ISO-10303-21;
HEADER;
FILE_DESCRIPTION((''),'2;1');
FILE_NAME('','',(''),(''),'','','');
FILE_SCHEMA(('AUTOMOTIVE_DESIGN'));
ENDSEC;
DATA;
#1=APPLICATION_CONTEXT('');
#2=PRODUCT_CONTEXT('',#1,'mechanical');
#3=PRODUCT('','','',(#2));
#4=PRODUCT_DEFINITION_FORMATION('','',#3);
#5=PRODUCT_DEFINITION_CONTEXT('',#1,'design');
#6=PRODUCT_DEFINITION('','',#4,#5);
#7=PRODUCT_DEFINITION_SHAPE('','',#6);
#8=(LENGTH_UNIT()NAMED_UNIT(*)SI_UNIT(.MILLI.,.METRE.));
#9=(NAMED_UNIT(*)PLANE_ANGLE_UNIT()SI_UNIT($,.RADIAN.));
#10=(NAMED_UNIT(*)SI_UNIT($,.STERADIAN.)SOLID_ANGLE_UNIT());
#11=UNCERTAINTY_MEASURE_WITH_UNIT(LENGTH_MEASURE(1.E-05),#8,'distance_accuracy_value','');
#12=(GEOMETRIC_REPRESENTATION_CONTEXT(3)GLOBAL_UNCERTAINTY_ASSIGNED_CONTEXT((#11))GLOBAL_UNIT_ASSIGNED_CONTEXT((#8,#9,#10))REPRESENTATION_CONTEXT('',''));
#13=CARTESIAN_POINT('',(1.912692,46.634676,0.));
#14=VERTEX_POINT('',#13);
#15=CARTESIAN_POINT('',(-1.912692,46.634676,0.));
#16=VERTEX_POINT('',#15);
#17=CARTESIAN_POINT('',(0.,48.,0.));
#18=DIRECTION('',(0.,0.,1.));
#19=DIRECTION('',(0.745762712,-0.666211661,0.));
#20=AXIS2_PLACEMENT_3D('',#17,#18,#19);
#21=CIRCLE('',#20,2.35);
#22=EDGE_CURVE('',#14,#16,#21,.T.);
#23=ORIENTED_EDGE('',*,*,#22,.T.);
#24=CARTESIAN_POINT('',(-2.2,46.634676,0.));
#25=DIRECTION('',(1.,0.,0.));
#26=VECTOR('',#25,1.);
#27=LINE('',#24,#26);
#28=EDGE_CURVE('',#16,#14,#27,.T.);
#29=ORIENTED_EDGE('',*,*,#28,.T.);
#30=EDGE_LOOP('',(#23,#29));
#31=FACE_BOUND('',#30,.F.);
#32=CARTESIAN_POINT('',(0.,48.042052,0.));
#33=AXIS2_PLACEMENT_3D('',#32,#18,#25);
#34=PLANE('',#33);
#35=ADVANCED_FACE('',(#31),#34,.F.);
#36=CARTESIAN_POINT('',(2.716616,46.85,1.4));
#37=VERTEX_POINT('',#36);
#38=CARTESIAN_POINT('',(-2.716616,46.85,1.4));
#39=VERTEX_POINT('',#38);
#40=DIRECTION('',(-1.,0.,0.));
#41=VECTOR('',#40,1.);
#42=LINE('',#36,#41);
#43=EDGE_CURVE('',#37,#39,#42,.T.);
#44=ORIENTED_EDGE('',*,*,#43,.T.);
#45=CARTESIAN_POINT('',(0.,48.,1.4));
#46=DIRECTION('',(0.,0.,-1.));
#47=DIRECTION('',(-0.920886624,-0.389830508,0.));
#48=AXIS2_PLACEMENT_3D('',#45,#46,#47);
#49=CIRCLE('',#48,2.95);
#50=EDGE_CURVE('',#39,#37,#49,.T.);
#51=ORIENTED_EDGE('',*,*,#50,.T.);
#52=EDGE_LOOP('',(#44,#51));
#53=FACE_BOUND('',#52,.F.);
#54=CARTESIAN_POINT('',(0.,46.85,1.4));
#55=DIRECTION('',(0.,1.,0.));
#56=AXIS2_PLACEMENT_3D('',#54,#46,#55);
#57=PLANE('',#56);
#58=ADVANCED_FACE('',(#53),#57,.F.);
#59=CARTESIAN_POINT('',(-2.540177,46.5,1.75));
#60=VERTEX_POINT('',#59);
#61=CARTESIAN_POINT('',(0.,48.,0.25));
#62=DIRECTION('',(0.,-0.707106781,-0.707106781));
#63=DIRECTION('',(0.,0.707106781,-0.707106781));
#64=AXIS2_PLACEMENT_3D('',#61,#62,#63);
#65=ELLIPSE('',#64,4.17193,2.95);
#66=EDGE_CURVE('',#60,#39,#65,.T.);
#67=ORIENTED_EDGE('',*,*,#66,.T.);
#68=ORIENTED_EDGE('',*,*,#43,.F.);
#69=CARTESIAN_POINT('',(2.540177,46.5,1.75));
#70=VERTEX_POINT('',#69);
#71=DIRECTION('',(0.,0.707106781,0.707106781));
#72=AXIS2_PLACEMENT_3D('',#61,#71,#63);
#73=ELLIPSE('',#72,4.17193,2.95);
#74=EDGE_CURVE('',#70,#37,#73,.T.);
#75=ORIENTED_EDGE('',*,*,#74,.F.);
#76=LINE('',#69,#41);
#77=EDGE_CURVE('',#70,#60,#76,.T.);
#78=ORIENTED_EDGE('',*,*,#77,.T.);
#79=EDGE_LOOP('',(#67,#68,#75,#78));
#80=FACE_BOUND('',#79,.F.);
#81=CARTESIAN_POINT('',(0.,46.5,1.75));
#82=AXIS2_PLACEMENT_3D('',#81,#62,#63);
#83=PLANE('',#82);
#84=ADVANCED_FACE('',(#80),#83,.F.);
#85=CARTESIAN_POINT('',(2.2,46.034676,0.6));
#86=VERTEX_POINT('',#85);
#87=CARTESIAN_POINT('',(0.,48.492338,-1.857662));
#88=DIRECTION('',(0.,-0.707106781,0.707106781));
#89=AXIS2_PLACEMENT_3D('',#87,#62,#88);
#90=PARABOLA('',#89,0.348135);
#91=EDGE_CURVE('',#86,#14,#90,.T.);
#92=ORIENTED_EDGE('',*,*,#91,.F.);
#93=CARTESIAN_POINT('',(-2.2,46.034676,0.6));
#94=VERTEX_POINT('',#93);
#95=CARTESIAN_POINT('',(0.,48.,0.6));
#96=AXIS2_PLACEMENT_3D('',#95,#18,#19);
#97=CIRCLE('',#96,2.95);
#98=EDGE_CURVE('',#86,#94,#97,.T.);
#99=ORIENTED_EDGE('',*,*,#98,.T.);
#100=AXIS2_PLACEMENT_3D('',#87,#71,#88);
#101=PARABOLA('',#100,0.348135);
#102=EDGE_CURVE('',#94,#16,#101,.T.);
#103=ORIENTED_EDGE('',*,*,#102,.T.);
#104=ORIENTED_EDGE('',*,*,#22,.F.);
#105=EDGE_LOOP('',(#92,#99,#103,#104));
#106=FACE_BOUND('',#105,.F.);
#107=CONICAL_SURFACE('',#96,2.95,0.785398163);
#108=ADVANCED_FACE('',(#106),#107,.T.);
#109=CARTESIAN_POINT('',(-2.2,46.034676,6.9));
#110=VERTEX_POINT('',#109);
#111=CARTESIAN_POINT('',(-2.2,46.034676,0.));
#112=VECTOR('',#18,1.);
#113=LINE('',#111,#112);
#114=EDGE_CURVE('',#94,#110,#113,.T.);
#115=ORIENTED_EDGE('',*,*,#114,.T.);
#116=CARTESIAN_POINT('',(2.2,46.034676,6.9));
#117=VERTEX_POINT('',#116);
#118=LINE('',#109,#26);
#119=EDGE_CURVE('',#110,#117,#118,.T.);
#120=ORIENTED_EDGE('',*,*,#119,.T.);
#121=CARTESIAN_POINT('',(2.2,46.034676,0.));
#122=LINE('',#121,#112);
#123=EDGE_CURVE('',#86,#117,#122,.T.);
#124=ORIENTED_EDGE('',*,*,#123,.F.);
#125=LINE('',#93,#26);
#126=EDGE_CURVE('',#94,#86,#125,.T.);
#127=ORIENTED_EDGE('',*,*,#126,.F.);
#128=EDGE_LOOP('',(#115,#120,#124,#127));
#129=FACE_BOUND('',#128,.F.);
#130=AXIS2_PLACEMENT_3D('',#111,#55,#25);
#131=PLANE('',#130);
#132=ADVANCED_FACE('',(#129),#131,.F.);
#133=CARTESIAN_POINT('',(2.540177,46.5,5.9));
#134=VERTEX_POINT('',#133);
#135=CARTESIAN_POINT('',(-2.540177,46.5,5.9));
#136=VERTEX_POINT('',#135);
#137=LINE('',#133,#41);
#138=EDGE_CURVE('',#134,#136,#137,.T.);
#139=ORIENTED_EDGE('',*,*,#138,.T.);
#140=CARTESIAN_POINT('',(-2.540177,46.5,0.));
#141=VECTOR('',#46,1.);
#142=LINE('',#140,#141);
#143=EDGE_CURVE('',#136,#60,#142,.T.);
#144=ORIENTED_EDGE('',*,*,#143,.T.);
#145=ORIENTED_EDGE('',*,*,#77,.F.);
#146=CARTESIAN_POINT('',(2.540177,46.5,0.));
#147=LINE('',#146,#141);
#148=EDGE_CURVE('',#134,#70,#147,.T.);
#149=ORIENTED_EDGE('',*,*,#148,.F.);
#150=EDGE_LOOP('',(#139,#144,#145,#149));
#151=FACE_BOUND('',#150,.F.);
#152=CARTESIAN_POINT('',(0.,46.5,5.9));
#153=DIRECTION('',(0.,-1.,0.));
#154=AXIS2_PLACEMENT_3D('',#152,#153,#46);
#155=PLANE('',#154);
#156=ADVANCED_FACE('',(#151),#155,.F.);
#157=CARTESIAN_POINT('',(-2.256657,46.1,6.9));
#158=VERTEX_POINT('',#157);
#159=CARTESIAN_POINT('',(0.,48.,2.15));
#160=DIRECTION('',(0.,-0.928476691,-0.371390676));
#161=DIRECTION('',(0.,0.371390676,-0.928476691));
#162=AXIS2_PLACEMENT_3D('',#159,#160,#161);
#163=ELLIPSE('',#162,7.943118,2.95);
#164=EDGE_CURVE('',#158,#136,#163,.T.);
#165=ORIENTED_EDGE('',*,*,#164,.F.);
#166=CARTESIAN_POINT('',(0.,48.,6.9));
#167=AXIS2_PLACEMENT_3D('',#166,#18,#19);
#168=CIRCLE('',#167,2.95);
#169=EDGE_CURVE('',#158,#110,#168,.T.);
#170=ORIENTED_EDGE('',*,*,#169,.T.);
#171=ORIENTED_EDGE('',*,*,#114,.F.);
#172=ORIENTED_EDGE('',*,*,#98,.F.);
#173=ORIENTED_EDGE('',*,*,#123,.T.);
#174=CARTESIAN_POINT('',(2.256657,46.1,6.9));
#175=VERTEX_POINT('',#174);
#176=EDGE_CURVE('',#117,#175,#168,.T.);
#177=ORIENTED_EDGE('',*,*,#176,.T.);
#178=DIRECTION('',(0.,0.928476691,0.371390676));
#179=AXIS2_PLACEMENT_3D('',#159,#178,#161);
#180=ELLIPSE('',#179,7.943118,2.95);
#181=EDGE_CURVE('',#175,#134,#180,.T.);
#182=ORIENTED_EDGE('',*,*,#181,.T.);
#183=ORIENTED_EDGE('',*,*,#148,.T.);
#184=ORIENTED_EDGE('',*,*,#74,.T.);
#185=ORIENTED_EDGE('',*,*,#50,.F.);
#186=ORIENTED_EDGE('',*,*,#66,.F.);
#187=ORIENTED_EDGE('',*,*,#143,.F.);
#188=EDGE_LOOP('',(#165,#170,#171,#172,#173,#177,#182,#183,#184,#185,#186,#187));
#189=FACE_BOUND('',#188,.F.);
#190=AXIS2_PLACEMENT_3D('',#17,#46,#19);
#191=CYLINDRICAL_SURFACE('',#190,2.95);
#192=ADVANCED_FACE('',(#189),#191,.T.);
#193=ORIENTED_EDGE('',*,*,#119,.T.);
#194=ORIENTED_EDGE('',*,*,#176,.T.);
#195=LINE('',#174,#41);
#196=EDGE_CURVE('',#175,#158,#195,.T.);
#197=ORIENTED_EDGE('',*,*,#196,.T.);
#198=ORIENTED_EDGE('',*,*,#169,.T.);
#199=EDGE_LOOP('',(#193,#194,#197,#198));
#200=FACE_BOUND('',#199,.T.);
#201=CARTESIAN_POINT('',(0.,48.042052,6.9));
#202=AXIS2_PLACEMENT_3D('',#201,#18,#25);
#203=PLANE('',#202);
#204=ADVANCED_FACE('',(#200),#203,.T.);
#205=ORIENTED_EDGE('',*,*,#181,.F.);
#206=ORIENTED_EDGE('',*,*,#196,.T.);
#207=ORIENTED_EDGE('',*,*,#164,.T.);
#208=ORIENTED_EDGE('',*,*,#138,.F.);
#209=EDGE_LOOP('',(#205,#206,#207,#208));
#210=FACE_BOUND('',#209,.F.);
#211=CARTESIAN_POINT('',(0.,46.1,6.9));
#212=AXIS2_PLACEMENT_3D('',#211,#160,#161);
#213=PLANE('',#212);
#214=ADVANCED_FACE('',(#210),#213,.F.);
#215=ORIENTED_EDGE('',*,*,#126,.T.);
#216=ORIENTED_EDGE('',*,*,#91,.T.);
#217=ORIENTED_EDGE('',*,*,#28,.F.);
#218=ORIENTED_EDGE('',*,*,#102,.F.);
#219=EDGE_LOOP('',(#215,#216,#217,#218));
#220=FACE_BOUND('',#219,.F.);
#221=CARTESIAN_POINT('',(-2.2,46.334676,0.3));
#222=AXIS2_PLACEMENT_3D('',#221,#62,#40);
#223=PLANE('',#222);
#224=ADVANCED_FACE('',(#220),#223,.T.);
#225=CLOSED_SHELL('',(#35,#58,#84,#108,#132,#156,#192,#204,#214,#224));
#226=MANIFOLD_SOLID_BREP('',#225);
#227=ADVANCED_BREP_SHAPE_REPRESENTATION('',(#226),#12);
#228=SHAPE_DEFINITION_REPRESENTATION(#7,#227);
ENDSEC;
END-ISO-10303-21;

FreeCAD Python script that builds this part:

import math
import FreeCAD as App
import Part
import Sketcher
Q = App.Units.Quantity


def edges_at(feature, points):
    """Names of the edges that pass closest to the given points."""
    edges = feature.Shape.Edges
    near = lambda p: min(range(len(edges)), key=lambda i: edges[i].distToShape(Part.Vertex(*p))[0])
    return sorted({f"Edge{near(p) + 1}" for p in points})

doc = App.newDocument("Part")
body = doc.addObject("PartDesign::Body", "Body")

sketch1 = body.newObject("Sketcher::SketchObject", "Sketch")
sketch1.AttachmentSupport = (doc.getObject("XY_Plane"), [""])
sketch1.MapMode = "FlatFace"
sketch1.addGeometry(Part.ArcOfCircle(Part.Circle(App.Vector(0, 0, 0), App.Vector(0, 0, 1), 2.95), math.radians(-41.775348), math.radians(221.775348)), False)
sketch1.addGeometry(Part.LineSegment(App.Vector(-2.2, -1.965324, 0), App.Vector(2.2, -1.965324, 0)), False)
sketch1.addConstraint(Sketcher.Constraint("Coincident", 0, 1, 1, 2))
sketch1.addConstraint(Sketcher.Constraint("Coincident", 1, 1, 0, 2))
sketch1.addConstraint(Sketcher.Constraint("Horizontal", 1))
sketch1.addConstraint(Sketcher.Constraint("Coincident", 0, 3, -1, 1))
sketch1.addConstraint(Sketcher.Constraint("Radius", 0, 2.95))
sketch1.addConstraint(Sketcher.Constraint("DistanceX", 1, 1, 1, 2, 4.4))
pad1 = body.newObject("PartDesign::Pad", "Pad")
pad1.Profile = sketch1
pad1.Length = 6.9

sketch2 = body.newObject("Sketcher::SketchObject", "Sketch001")
sketch2.AttachmentSupport = (doc.getObject("YZ_Plane"), [""])
sketch2.MapMode = "FlatFace"
sketch2.addGeometry(Part.LineSegment(App.Vector(-1.9, 6.9, 0), App.Vector(-1.5, 5.9, 0)), False)
sketch2.addGeometry(Part.LineSegment(App.Vector(-1.5, 5.9, 0), App.Vector(-1.5, 1.75, 0)), False)
sketch2.addGeometry(Part.LineSegment(App.Vector(-1.5, 1.75, 0), App.Vector(-1.15, 1.4, 0)), False)
sketch2.addGeometry(Part.LineSegment(App.Vector(-1.15, 1.4, 0), App.Vector(5, 1.4, 0)), False)
sketch2.addGeometry(Part.LineSegment(App.Vector(5, 1.4, 0), App.Vector(5, 6.9, 0)), False)
sketch2.addGeometry(Part.LineSegment(App.Vector(5, 6.9, 0), App.Vector(-1.9, 6.9, 0)), False)
sketch2.addConstraint(Sketcher.Constraint("Coincident", 0, 2, 1, 1))
sketch2.addConstraint(Sketcher.Constraint("Coincident", 1, 2, 2, 1))
sketch2.addConstraint(Sketcher.Constraint("Coincident", 2, 2, 3, 1))
sketch2.addConstraint(Sketcher.Constraint("Coincident", 3, 2, 4, 1))
sketch2.addConstraint(Sketcher.Constraint("Coincident", 4, 2, 5, 1))
sketch2.addConstraint(Sketcher.Constraint("Coincident", 5, 2, 0, 1))
sketch2.addConstraint(Sketcher.Constraint("Vertical", 1))
sketch2.addConstraint(Sketcher.Constraint("Horizontal", 3))
sketch2.addConstraint(Sketcher.Constraint("Vertical", 4))
sketch2.addConstraint(Sketcher.Constraint("Horizontal", 5))
sketch2.addConstraint(Sketcher.Constraint("Angle", 2, Q("-45 deg")))
sketch2.addConstraint(Sketcher.Constraint("DistanceX", 5, 2, 5, 1, 6.9))
sketch2.addConstraint(Sketcher.Constraint("DistanceY", 4, 1, 4, 2, 5.5))
sketch2.addConstraint(Sketcher.Constraint("DistanceX", -1, 1, 3, 2, 5.0))
sketch2.addConstraint(Sketcher.Constraint("DistanceY", 0, 2, 4, 2, 1.0))
sketch2.addConstraint(Sketcher.Constraint("DistanceX", 3, 1, 3, 2, 6.15))
sketch2.addConstraint(Sketcher.Constraint("DistanceY", 1, 2, 1, 1, 4.15))
sketch2.addConstraint(Sketcher.Constraint("DistanceY", -1, 1, 0, 2, 5.9))
pocket1 = body.newObject("PartDesign::Pocket", "Pocket")
pocket1.Profile = sketch2
pocket1.Type = "ThroughAll"
pocket1.Midplane = True
doc.recompute()

chamfer = body.newObject("PartDesign::Chamfer", "Chamfer")
chamfer.Base = (pocket1, edges_at(pocket1, [(0, 2.95, 0), (0, -1.965, 0)]))
chamfer.Size = 0.6
body2 = doc.addObject("PartDesign::Body", "Body001")
doc.recompute()

body.Placement = App.Placement(App.Vector(0, 48, 0), App.Rotation(App.Vector(0, 0, 1), 0))
boolean = body2.newObject("PartDesign::Boolean", "Boolean")
boolean.Type = "Fuse"
boolean.addObjects([body])

doc.recompute()
